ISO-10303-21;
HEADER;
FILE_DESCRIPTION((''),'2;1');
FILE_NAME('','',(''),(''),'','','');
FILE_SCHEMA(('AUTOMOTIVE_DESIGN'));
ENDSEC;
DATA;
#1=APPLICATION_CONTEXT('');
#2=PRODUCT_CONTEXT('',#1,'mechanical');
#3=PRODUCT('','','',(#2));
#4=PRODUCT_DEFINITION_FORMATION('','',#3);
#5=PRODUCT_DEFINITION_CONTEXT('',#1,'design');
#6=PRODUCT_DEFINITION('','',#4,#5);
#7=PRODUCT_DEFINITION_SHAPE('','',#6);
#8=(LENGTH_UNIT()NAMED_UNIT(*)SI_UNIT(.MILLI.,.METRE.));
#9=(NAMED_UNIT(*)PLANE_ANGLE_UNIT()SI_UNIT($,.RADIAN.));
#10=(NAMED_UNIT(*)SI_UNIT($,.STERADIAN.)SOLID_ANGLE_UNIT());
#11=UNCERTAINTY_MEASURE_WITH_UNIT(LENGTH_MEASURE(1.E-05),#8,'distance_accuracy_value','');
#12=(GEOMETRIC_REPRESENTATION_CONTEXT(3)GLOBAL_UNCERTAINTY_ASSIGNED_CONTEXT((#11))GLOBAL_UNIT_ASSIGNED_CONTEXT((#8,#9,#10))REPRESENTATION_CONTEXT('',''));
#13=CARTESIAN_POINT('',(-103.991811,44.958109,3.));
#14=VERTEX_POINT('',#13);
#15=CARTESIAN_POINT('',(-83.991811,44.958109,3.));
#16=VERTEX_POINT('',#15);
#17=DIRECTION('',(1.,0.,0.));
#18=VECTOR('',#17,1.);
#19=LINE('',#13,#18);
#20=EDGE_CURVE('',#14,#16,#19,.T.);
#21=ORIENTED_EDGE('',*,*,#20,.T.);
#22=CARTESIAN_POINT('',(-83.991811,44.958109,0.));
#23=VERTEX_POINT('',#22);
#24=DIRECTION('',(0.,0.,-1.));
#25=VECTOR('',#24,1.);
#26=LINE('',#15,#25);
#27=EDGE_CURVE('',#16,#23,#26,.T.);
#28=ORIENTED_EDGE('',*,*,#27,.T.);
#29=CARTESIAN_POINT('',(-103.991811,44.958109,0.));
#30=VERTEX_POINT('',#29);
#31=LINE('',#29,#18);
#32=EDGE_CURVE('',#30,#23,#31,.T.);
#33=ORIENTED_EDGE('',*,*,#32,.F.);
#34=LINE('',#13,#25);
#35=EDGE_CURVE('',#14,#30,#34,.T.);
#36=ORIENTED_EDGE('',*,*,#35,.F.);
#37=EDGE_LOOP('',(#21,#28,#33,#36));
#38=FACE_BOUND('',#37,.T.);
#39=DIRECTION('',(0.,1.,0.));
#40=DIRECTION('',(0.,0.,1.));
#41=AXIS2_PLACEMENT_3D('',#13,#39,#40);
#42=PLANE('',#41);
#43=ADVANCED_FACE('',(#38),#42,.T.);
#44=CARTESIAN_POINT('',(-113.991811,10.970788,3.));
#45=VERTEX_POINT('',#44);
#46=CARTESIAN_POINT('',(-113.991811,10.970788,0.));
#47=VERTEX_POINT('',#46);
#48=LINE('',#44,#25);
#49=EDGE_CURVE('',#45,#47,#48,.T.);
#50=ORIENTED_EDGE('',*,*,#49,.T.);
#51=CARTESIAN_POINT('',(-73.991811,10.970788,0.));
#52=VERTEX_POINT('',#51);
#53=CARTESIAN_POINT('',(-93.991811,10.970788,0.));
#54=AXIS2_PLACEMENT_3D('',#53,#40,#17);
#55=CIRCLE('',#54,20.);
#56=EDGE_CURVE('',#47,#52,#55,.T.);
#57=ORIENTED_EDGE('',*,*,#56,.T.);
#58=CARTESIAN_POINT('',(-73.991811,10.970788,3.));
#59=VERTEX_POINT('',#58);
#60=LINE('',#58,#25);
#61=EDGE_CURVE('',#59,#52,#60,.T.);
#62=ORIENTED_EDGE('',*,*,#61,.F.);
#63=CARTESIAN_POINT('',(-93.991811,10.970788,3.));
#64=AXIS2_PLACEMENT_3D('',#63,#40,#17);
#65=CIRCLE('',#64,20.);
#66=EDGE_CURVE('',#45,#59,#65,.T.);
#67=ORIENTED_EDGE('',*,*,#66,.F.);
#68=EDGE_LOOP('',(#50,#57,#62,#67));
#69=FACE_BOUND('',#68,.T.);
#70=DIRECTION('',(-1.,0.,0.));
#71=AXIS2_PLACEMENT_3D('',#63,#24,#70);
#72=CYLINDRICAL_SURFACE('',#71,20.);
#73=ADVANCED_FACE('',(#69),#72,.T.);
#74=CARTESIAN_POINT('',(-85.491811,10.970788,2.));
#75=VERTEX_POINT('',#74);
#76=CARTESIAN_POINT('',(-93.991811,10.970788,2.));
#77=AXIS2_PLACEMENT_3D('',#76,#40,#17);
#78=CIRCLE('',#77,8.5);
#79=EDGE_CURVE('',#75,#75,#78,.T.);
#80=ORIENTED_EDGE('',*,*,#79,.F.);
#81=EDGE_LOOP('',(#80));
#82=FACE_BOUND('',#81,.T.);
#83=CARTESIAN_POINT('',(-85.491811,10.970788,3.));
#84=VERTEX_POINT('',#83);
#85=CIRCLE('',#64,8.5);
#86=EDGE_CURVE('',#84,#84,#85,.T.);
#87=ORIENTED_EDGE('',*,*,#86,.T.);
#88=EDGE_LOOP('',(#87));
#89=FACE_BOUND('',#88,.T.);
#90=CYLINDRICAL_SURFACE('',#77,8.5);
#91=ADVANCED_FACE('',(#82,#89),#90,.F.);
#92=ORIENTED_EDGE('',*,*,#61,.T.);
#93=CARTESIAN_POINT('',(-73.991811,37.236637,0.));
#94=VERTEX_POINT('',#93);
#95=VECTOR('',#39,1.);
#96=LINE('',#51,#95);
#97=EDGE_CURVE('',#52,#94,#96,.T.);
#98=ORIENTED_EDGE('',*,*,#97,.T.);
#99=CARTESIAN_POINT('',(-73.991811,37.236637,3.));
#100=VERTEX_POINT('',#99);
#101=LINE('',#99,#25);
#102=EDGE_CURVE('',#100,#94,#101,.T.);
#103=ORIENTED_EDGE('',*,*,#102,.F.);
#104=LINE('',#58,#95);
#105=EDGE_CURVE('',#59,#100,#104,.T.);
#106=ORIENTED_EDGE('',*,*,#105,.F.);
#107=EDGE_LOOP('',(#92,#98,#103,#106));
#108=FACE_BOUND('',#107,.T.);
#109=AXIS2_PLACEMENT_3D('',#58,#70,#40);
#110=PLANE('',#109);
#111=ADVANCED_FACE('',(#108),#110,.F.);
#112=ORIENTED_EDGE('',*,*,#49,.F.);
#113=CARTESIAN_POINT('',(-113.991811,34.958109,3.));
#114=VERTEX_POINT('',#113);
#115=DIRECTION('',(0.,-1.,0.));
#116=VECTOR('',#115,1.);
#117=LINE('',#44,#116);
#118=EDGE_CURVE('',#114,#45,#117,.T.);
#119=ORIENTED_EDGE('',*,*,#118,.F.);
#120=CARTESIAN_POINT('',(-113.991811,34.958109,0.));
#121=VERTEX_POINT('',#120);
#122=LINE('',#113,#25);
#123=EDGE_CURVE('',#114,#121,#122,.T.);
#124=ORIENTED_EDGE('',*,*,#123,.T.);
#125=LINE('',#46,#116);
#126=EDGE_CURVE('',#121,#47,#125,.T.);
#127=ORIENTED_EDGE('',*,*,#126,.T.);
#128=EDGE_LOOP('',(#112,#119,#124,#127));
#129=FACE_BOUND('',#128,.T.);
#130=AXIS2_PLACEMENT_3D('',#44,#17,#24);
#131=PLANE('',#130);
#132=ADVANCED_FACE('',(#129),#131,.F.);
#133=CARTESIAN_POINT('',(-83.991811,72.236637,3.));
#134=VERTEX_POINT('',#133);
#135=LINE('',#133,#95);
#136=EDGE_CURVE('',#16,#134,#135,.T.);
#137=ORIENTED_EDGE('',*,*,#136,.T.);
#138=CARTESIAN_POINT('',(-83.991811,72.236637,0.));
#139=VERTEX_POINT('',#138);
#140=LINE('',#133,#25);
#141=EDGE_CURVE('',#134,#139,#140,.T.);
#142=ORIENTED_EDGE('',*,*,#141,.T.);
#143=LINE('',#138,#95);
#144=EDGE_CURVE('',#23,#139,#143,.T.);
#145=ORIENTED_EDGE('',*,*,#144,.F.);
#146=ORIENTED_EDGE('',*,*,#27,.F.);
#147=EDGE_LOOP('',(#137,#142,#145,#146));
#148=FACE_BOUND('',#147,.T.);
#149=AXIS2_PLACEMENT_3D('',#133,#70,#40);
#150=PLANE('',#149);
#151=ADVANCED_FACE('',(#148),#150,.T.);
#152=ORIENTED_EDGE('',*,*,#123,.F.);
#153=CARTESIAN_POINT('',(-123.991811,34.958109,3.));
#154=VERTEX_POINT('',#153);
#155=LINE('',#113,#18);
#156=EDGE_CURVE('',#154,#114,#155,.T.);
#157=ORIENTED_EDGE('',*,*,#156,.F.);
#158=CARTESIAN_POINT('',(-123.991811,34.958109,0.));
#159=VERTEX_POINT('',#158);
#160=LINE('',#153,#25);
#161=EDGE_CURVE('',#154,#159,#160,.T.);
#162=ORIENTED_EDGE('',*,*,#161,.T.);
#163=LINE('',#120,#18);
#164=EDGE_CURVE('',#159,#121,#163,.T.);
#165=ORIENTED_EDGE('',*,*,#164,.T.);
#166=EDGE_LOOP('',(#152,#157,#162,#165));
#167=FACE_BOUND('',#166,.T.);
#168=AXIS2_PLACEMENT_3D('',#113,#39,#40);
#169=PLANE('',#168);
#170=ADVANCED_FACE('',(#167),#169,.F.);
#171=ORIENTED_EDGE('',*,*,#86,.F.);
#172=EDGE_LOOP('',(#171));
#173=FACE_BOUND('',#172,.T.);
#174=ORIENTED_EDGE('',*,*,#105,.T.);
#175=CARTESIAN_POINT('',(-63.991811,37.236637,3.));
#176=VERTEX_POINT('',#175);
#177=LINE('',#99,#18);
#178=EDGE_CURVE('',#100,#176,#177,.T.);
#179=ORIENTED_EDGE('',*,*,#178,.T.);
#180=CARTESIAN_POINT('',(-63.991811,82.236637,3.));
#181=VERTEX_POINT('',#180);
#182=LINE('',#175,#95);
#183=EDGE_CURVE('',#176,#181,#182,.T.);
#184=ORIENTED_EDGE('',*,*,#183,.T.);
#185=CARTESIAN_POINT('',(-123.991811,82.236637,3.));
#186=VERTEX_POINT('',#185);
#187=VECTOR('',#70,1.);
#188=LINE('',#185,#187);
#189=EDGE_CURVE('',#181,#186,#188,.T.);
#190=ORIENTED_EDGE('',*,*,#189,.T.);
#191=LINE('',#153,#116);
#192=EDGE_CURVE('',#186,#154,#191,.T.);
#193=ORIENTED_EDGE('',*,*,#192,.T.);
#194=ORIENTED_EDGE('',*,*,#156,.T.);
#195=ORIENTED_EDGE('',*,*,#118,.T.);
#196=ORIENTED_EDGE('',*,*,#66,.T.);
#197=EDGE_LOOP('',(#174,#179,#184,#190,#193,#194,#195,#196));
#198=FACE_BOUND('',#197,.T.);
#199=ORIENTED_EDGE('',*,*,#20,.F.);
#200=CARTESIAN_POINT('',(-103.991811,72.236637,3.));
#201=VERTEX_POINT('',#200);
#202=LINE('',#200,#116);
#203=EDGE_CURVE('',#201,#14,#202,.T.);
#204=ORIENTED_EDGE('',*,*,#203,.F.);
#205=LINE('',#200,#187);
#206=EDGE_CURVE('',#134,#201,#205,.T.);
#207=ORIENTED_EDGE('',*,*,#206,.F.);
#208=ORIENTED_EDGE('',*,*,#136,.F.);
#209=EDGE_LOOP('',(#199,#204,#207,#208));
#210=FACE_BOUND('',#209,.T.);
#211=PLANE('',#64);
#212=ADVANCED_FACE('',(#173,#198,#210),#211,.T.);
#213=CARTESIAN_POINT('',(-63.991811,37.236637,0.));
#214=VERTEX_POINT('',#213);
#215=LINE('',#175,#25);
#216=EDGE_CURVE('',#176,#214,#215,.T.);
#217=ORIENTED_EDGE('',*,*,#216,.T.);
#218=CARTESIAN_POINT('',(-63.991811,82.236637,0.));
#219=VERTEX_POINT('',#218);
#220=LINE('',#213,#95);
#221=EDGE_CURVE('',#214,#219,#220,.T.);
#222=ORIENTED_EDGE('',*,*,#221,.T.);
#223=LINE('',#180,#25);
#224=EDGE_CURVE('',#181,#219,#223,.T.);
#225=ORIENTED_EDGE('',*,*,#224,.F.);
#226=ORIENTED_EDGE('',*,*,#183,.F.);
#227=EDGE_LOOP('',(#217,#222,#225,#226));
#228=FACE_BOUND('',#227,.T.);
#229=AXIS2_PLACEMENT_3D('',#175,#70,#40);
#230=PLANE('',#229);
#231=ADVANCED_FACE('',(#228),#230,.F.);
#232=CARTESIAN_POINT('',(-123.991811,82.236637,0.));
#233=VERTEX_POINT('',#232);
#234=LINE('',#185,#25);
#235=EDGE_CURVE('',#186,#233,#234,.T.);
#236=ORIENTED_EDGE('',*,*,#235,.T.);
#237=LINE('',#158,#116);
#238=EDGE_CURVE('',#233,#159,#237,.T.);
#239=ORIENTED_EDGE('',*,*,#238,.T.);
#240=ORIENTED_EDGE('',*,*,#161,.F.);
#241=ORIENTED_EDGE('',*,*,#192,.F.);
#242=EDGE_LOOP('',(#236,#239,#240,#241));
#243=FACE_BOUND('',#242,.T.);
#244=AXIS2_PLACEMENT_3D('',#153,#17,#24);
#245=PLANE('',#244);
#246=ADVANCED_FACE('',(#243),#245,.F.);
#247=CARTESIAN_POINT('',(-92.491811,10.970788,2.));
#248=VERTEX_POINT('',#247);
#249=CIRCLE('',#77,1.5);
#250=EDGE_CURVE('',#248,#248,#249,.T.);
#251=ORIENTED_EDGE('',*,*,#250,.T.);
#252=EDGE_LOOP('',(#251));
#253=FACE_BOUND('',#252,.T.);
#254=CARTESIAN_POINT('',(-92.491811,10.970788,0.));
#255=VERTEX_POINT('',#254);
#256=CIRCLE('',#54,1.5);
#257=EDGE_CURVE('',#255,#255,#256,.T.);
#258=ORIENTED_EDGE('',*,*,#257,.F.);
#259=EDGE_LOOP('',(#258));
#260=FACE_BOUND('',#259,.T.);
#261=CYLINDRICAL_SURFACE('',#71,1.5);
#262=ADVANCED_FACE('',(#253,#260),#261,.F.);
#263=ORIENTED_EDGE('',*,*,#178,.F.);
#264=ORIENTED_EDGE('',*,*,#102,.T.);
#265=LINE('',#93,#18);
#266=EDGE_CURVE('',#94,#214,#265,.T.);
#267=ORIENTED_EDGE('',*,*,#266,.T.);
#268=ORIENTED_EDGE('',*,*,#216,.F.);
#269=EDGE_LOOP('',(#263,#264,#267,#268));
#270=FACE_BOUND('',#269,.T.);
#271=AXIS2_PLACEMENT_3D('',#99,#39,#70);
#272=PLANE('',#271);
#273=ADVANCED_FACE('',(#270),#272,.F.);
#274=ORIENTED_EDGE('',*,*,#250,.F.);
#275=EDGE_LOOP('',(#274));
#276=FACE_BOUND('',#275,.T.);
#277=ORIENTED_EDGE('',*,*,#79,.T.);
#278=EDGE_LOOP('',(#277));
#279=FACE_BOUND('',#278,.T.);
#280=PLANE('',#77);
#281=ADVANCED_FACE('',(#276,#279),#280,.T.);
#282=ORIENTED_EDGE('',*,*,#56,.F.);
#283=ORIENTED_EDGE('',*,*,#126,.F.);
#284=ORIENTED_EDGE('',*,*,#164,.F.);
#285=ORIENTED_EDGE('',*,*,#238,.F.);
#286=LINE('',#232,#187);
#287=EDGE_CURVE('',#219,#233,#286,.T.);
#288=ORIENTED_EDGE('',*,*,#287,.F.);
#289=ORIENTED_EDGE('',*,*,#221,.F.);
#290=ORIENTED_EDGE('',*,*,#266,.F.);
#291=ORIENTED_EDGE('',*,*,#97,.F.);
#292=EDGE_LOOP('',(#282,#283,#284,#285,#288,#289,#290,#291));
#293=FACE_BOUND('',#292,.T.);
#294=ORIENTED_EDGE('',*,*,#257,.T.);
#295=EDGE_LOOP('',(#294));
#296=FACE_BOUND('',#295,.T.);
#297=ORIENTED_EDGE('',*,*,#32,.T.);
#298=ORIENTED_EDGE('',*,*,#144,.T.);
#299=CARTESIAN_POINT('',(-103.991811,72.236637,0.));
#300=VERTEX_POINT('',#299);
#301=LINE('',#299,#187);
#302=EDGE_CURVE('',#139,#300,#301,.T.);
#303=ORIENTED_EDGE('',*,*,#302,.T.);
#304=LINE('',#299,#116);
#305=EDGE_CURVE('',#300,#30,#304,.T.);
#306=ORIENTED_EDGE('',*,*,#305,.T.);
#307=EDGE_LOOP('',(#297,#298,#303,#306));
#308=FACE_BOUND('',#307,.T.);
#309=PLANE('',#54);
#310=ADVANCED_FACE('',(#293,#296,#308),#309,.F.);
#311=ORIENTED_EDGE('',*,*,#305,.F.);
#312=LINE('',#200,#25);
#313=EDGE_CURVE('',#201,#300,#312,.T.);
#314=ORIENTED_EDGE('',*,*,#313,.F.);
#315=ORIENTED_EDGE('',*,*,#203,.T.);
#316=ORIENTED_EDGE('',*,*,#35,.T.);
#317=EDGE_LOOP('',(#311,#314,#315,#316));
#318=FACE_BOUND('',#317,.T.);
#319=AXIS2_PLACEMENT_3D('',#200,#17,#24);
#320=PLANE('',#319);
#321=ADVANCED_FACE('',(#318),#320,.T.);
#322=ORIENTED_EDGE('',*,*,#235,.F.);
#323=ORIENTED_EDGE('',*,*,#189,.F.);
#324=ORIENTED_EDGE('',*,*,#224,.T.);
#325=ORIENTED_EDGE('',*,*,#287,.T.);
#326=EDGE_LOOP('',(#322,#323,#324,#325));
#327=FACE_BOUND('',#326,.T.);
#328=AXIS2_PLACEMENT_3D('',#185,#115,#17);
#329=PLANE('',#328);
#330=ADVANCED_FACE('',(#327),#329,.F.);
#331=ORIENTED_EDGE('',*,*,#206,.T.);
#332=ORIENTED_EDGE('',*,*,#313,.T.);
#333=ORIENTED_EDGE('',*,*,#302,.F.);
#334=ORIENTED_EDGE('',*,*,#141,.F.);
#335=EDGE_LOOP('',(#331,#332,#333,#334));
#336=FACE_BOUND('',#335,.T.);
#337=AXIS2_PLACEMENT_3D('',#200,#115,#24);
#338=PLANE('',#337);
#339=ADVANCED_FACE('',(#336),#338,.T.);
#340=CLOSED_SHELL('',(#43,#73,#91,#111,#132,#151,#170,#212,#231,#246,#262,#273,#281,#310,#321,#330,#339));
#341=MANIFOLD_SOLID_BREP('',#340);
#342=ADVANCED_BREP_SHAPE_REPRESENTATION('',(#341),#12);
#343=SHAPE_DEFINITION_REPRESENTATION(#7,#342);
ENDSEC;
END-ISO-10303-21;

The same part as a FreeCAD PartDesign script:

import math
import FreeCAD as App
import Part
import Sketcher


def add_polygon(sketch, points):
    """Adds a closed chain of lines whose ends are joined by coincident constraints."""
    first, n = sketch.GeometryCount, len(points)
    for a, b in zip(points, points[1:] + points[:1]):
        sketch.addGeometry(Part.LineSegment(App.Vector(*a, 0), App.Vector(*b, 0)), False)
    for i in range(n):
        sketch.addConstraint(Sketcher.Constraint("Coincident", first + i, 2, first + (i + 1) % n, 1))

doc = App.newDocument("Part")
body = doc.addObject("PartDesign::Body", "Body")

# Sketch on XY plane
sketch1 = body.newObject("Sketcher::SketchObject", "Sketch")
sketch1.AttachmentSupport = (doc.getObject("XY_Plane"), [""])
sketch1.MapMode = "FlatFace"
sketch1.addGeometry(Part.LineSegment(App.Vector(-114, 35, 0), App.Vector(-114, 11, 0)), False)  # 0
sketch1.addGeometry(Part.ArcOfCircle(Part.Circle(App.Vector(-94, 11, 0), App.Vector(0, 0, 1), 20), math.radians(180), math.radians(360)), False)  # 1
sketch1.addGeometry(Part.LineSegment(App.Vector(-74, 11, 0), App.Vector(-74, 37.2, 0)), False)  # 2
sketch1.addGeometry(Part.LineSegment(App.Vector(-74, 37.2, 0), App.Vector(-64, 37.2, 0)), False)  # 3
sketch1.addGeometry(Part.LineSegment(App.Vector(-64, 37.2, 0), App.Vector(-64, 82.2, 0)), False)  # 4
sketch1.addGeometry(Part.LineSegment(App.Vector(-64, 82.2, 0), App.Vector(-124, 82.2, 0)), False)  # 5
sketch1.addGeometry(Part.LineSegment(App.Vector(-124, 82.2, 0), App.Vector(-124, 35, 0)), False)  # 6
sketch1.addGeometry(Part.LineSegment(App.Vector(-124, 35, 0), App.Vector(-114, 35, 0)), False)  # 7
sketch1.addGeometry(Part.Circle(App.Vector(-94, 11, 0), App.Vector(0, 0, 1), 1.5), False)  # 8
add_polygon(sketch1, [(-104, 45), (-104, 72.2), (-84, 72.2), (-84, 45)])  # lines 9-12
sketch1.addConstraint([
    Sketcher.Constraint("Tangent", 0, 2, 1, 1),
    Sketcher.Constraint("Tangent", 1, 2, 2, 1),
    Sketcher.Constraint("Coincident", 2, 2, 3, 1),
    Sketcher.Constraint("Coincident", 3, 2, 4, 1),
    Sketcher.Constraint("Coincident", 4, 2, 5, 1),
    Sketcher.Constraint("Coincident", 5, 2, 6, 1),
    Sketcher.Constraint("Coincident", 6, 2, 7, 1),
    Sketcher.Constraint("Coincident", 7, 2, 0, 1),
    Sketcher.Constraint("Vertical", 0),
    Sketcher.Constraint("Vertical", 2),
    Sketcher.Constraint("Horizontal", 3),
    Sketcher.Constraint("Vertical", 4),
    Sketcher.Constraint("Horizontal", 5),
    Sketcher.Constraint("Vertical", 6),
    Sketcher.Constraint("Horizontal", 7),
    Sketcher.Constraint("Vertical", 9),
    Sketcher.Constraint("Horizontal", 10),
    Sketcher.Constraint("Vertical", 11),
    Sketcher.Constraint("Horizontal", 12),
    Sketcher.Constraint("Coincident", 8, 3, 1, 3),
    Sketcher.Constraint("Equal", 3, 7),
    Sketcher.Constraint("Diameter", 8, 3.0),
    Sketcher.Constraint("Radius", 1, 20.0),
    Sketcher.Constraint("DistanceX", 3, 1, 3, 2, 10.0),
    Sketcher.Constraint("DistanceX", 10, 1, 10, 2, 20.0),
    Sketcher.Constraint("DistanceY", 4, 1, 4, 2, 45.0),
    Sketcher.Constraint("DistanceX", 5, 2, 9, 2, 20.0),
    Sketcher.Constraint("DistanceY", 9, 2, 5, 2, 10.0),
    Sketcher.Constraint("DistanceY", 7, 2, 11, 2, 10.0),
    Sketcher.Constraint("DistanceY", 0, 2, 0, 1, 23.987321),
    Sketcher.Constraint("DistanceY", 2, 1, 2, 2, 26.265849),
    Sketcher.Constraint("DistanceX", 1, 3, -1, 1, 93.991811),
    Sketcher.Constraint("DistanceY", -1, 1, 1, 3, 10.970788),
])
pad1 = body.newObject("PartDesign::Pad", "Pad")
pad1.Profile = sketch1
pad1.Length = 3

# Sketch on XY plane
sketch2 = body.newObject("Sketcher::SketchObject", "Sketch001")
sketch2.AttachmentSupport = (doc.getObject("XY_Plane"), [""])
sketch2.MapMode = "FlatFace"
sketch2.AttachmentOffset = App.Placement(App.Vector(0, 0, 3), App.Rotation())
sketch2.addGeometry(Part.Circle(App.Vector(-94, 11, 0), App.Vector(0, 0, 1), 8), False)
sketch2.addConstraint([
    Sketcher.Constraint("Diameter", 0, 17.0),
    Sketcher.Constraint("DistanceX", 0, 3, -1, 1, 93.991811),
    Sketcher.Constraint("DistanceY", -1, 1, 0, 3, 10.970788),
])
pocket1 = body.newObject("PartDesign::Pocket", "Pocket")
pocket1.Profile = sketch2
pocket1.Length = 1

doc.recompute()
